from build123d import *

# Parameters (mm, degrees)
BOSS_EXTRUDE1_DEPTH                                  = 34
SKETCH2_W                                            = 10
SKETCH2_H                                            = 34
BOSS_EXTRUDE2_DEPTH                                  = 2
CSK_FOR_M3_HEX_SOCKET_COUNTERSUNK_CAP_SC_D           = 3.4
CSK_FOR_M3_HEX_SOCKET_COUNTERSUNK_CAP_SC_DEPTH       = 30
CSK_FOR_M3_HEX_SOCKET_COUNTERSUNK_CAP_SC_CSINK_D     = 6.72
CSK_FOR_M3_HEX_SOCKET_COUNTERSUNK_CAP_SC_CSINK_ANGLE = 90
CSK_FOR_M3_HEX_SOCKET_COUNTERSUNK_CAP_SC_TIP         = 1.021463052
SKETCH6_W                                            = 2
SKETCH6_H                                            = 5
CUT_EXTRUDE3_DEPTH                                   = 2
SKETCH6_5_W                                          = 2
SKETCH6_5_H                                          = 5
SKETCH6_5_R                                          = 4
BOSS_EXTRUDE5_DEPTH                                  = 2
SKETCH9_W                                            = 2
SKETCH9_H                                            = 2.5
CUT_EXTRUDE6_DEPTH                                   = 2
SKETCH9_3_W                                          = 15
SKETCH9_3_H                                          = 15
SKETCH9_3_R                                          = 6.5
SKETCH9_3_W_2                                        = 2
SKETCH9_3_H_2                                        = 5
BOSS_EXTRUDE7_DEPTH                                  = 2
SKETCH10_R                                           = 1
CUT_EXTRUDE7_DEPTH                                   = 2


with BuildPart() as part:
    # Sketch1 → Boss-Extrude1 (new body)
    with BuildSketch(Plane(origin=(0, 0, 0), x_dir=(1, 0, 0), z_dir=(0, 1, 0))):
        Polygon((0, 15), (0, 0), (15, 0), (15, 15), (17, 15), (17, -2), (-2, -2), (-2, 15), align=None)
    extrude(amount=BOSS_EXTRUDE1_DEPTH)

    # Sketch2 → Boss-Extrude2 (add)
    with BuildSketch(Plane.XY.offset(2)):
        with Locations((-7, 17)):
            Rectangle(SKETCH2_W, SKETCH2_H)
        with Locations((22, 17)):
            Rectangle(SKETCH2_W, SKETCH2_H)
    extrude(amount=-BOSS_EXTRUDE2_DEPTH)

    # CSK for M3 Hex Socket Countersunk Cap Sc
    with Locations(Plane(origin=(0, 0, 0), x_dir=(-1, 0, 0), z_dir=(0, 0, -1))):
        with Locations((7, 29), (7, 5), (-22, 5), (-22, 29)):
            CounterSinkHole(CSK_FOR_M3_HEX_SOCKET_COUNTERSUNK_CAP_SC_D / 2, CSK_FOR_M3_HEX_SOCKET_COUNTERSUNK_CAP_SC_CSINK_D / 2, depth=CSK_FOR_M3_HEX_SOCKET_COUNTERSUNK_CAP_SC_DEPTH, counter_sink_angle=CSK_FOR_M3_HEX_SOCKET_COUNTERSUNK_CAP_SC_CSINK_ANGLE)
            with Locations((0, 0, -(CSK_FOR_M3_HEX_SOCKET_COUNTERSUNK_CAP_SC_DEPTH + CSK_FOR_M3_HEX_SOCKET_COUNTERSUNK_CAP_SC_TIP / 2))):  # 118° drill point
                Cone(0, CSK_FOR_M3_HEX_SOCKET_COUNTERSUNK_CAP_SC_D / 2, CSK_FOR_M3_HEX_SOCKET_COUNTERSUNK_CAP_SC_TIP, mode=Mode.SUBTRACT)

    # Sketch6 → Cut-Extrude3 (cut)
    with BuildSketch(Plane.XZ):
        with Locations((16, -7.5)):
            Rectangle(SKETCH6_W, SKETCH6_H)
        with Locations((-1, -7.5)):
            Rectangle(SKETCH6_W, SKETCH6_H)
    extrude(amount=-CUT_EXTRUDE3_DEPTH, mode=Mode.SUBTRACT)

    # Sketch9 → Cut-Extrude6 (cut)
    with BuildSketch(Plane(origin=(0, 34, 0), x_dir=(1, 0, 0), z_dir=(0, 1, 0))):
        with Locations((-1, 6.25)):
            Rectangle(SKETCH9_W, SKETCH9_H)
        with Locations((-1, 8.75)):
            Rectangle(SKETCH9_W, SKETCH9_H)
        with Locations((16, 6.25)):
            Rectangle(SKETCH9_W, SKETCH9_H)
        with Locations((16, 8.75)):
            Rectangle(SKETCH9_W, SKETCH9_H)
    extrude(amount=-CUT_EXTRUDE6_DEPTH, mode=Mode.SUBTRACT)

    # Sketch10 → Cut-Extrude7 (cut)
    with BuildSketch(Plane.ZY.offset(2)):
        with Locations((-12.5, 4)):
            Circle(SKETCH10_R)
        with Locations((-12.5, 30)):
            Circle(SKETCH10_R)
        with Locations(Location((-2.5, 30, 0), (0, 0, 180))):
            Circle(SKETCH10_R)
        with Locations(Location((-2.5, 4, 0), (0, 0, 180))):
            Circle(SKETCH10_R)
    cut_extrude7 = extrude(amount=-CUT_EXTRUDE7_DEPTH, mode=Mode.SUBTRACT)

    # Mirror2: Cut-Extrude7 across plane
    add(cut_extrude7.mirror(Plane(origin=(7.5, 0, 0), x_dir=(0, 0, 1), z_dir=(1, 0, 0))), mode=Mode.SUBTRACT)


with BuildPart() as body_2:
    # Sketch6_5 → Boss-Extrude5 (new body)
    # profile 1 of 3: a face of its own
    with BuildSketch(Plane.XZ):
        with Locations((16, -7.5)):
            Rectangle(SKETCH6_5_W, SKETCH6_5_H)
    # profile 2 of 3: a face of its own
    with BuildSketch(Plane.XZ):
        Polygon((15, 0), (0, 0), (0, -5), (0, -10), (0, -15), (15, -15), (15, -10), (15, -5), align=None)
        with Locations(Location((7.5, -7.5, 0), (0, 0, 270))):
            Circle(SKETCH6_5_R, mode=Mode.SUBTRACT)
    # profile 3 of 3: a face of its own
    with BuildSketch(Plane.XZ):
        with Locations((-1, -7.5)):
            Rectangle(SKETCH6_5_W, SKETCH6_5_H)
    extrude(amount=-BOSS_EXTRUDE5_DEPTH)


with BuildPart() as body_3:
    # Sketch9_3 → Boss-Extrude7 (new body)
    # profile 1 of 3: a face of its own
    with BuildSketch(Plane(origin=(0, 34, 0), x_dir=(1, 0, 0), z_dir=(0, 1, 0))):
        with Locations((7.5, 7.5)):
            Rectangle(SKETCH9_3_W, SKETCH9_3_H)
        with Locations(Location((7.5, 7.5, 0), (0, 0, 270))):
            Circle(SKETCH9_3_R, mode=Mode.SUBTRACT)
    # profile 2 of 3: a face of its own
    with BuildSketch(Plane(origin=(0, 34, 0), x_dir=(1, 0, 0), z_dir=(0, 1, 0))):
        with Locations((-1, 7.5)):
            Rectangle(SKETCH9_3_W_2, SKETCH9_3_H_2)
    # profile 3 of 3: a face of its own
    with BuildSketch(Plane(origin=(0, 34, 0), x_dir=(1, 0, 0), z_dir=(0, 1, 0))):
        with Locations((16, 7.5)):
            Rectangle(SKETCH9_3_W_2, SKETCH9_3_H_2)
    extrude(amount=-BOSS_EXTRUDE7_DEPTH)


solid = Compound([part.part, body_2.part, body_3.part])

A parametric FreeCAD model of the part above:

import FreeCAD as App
import Part
import Sketcher

V = App.Vector
Q = App.Units.Quantity

doc = App.newDocument("Part")
body = doc.addObject("PartDesign::Body", "Body")

sketch1 = doc.addObject("Sketcher::SketchObject", "Sketch")
body.addObject(sketch1)
sketch1.AttachmentSupport = (doc.XZ_Plane, [""])
sketch1.MapMode = "FlatFace"
sketch1.addGeometry([
    Part.LineSegment(V(0, 0, 0), V(0, -15, 0)),
    Part.LineSegment(V(0, -15, 0), V(-2, -15, 0)),
    Part.LineSegment(V(-2, -15, 0), V(-2, 2, 0)),
    Part.LineSegment(V(-2, 2, 0), V(17, 2, 0)),
    Part.LineSegment(V(17, 2, 0), V(17, -15, 0)),
    Part.LineSegment(V(17, -15, 0), V(15, -15, 0)),
    Part.LineSegment(V(15, -15, 0), V(15, 0, 0)),
    Part.LineSegment(V(15, 0, 0), V(0, 0, 0)),
], False)
sketch1.addConstraint([
    Sketcher.Constraint("Coincident", 0, 2, 1, 1),
    Sketcher.Constraint("Coincident", 1, 2, 2, 1),
    Sketcher.Constraint("Coincident", 2, 2, 3, 1),
    Sketcher.Constraint("Coincident", 3, 2, 4, 1),
    Sketcher.Constraint("Coincident", 4, 2, 5, 1),
    Sketcher.Constraint("Coincident", 5, 2, 6, 1),
    Sketcher.Constraint("Coincident", 6, 2, 7, 1),
    Sketcher.Constraint("Coincident", 7, 2, 0, 1),
    Sketcher.Constraint("Vertical", 0),
    Sketcher.Constraint("Horizontal", 1),
    Sketcher.Constraint("Vertical", 2),
    Sketcher.Constraint("Horizontal", 3),
    Sketcher.Constraint("Vertical", 4),
    Sketcher.Constraint("Horizontal", 5),
    Sketcher.Constraint("Vertical", 6),
    Sketcher.Constraint("Horizontal", 7),
    Sketcher.Constraint("Coincident", 7, 2, -1, 1),
    Sketcher.Constraint("Horizontal", 1, 2, 4, 2),
    Sketcher.Constraint("Equal", 1, 5),
    Sketcher.Constraint("Equal", 7, 0),
    Sketcher.Constraint("DistanceX", 1, 2, 1, 1, Q("2 mm")),
    Sketcher.Constraint("DistanceX", 3, 1, 3, 2, Q("19 mm")),
    Sketcher.Constraint("DistanceY", 2, 1, 2, 2, Q("17 mm")),
])
pad1 = doc.addObject("PartDesign::Pad", "Pad")
body.addObject(pad1)
pad1.Profile = sketch1
pad1.Length = 34
pad1.Reversed = True

sketch2 = doc.addObject("Sketcher::SketchObject", "Sketch001")
body.addObject(sketch2)
sketch2.AttachmentSupport = (doc.XY_Plane, [""])
sketch2.MapMode = "FlatFace"
sketch2.AttachmentOffset = App.Placement(V(0, 0, 2), App.Rotation())
sketch2.addGeometry([
    Part.LineSegment(V(-12, 34, 0), V(-12, 0, 0)),
    Part.LineSegment(V(-12, 0, 0), V(-2, 0, 0)),
    Part.LineSegment(V(-2, 0, 0), V(-2, 34, 0)),
    Part.LineSegment(V(-2, 34, 0), V(-12, 34, 0)),
    Part.LineSegment(V(17, 34, 0), V(17, 0, 0)),
    Part.LineSegment(V(17, 0, 0), V(27, 0, 0)),
    Part.LineSegment(V(27, 0, 0), V(27, 34, 0)),
    Part.LineSegment(V(27, 34, 0), V(17, 34, 0)),
], False)
sketch2.addConstraint([
    Sketcher.Constraint("Coincident", 0, 2, 1, 1),
    Sketcher.Constraint("Coincident", 1, 2, 2, 1),
    Sketcher.Constraint("Coincident", 2, 2, 3, 1),
    Sketcher.Constraint("Coincident", 3, 2, 0, 1),
    Sketcher.Constraint("Coincident", 4, 2, 5, 1),
    Sketcher.Constraint("Coincident", 5, 2, 6, 1),
    Sketcher.Constraint("Coincident", 6, 2, 7, 1),
    Sketcher.Constraint("Coincident", 7, 2, 4, 1),
    Sketcher.Constraint("Vertical", 0),
    Sketcher.Constraint("Horizontal", 1),
    Sketcher.Constraint("Vertical", 2),
    Sketcher.Constraint("Horizontal", 3),
    Sketcher.Constraint("Vertical", 4),
    Sketcher.Constraint("Horizontal", 5),
    Sketcher.Constraint("Vertical", 6),
    Sketcher.Constraint("Horizontal", 7),
    Sketcher.Constraint("PointOnObject", 0, 2, -1),
    Sketcher.Constraint("PointOnObject", 4, 2, -1),
    Sketcher.Constraint("Horizontal", 3, 2, 6, 2),
    Sketcher.Constraint("Equal", 3, 5),
    Sketcher.Constraint("DistanceX", 1, 1, 1, 2, Q("10 mm")),
    Sketcher.Constraint("DistanceY", 0, 2, 0, 1, Q("34 mm")),
    Sketcher.Constraint("DistanceX", 0, 2, -1, 1, Q("12 mm")),
    Sketcher.Constraint("DistanceX", -1, 1, 4, 2, Q("17 mm")),
])
pad2 = doc.addObject("PartDesign::Pad", "Pad001")
body.addObject(pad2)
pad2.Profile = sketch2
pad2.Length = 2
pad2.Reversed = True

sketch3 = doc.addObject("Sketcher::SketchObject", "Sketch002")
body.addObject(sketch3)
sketch3.AttachmentSupport = (doc.XY_Plane, [""])
sketch3.MapMode = "FlatFace"
sketch3.addGeometry([
    Part.Circle(V(-7, 29, 0), V(0, 0, 1), 1.7),
    Part.Circle(V(-7, 5, 0), V(0, 0, 1), 1.7),
    Part.Circle(V(22, 5, 0), V(0, 0, 1), 1.7),
    Part.Circle(V(22, 29, 0), V(0, 0, 1), 1.7),
], False)
sketch3.addConstraint([
    Sketcher.Constraint("Equal", 0, 1),
    Sketcher.Constraint("Equal", 1, 2),
    Sketcher.Constraint("Equal", 2, 3),
    Sketcher.Constraint("Horizontal", 1, 3, 2, 3),
    Sketcher.Constraint("Horizontal", 0, 3, 3, 3),
    Sketcher.Constraint("Vertical", 0, 3, 1, 3),
    Sketcher.Constraint("Vertical", 2, 3, 3, 3),
    Sketcher.Constraint("Diameter", 0, Q("3.4 mm")),
    Sketcher.Constraint("DistanceX", 0, 3, -1, 1, Q("7 mm")),
    Sketcher.Constraint("DistanceY", -1, 1, 0, 3, Q("29 mm")),
    Sketcher.Constraint("DistanceY", -1, 1, 1, 3, Q("5 mm")),
    Sketcher.Constraint("DistanceX", -1, 1, 2, 3, Q("22 mm")),
])
doc.recompute()
hole = doc.addObject("PartDesign::Hole", "Hole")
body.addObject(hole)
hole.Profile = sketch3
hole.ThreadType = "None"
hole.Diameter = 3.4
hole.DepthType = "Dimension"
hole.Depth = 30
hole.DrillPoint = "Angled"
hole.DrillPointAngle = 118
hole.HoleCutType = "Countersink"
hole.HoleCutDiameter = 6.72
hole.HoleCutCountersinkAngle = 90
hole.Reversed = True

sketch4 = doc.addObject("Sketcher::SketchObject", "Sketch003")
body.addObject(sketch4)
sketch4.AttachmentSupport = (doc.XZ_Plane, [""])
sketch4.MapMode = "FlatFace"
sketch4.addGeometry([
    Part.LineSegment(V(15, -5, 0), V(15, -10, 0)),
    Part.LineSegment(V(15, -10, 0), V(17, -10, 0)),
    Part.LineSegment(V(17, -10, 0), V(17, -5, 0)),
    Part.LineSegment(V(17, -5, 0), V(15, -5, 0)),
    Part.LineSegment(V(-2, -5, 0), V(-2, -10, 0)),
    Part.LineSegment(V(-2, -10, 0), V(0, -10, 0)),
    Part.LineSegment(V(0, -10, 0), V(0, -5, 0)),
    Part.LineSegment(V(0, -5, 0), V(-2, -5, 0)),
], False)
sketch4.addConstraint([
    Sketcher.Constraint("Coincident", 0, 2, 1, 1),
    Sketcher.Constraint("Coincident", 1, 2, 2, 1),
    Sketcher.Constraint("Coincident", 2, 2, 3, 1),
    Sketcher.Constraint("Coincident", 3, 2, 0, 1),
    Sketcher.Constraint("Coincident", 4, 2, 5, 1),
    Sketcher.Constraint("Coincident", 5, 2, 6, 1),
    Sketcher.Constraint("Coincident", 6, 2, 7, 1),
    Sketcher.Constraint("Coincident", 7, 2, 4, 1),
    Sketcher.Constraint("Vertical", 0),
    Sketcher.Constraint("Horizontal", 1),
    Sketcher.Constraint("Vertical", 2),
    Sketcher.Constraint("Horizontal", 3),
    Sketcher.Constraint("Vertical", 4),
    Sketcher.Constraint("Horizontal", 5),
    Sketcher.Constraint("Vertical", 6),
    Sketcher.Constraint("Horizontal", 7),
    Sketcher.Constraint("PointOnObject", 5, 2, -2),
    Sketcher.Constraint("Horizontal", 1, 2, 4, 2),
    Sketcher.Constraint("Horizontal", 3, 2, 6, 2),
    Sketcher.Constraint("Equal", 3, 5),
    Sketcher.Constraint("DistanceX", 1, 1, 1, 2, Q("2 mm")),
    Sketcher.Constraint("DistanceY", 0, 2, 0, 1, Q("5 mm")),
    Sketcher.Constraint("DistanceX", -1, 1, 0, 2, Q("15 mm")),
    Sketcher.Constraint("DistanceY", 0, 2, -1, 1, Q("10 mm")),
])
pocket1 = doc.addObject("PartDesign::Pocket", "Pocket")
body.addObject(pocket1)
pocket1.Profile = sketch4
pocket1.Length = 2

sketch5 = doc.addObject("Sketcher::SketchObject", "Sketch004")
body.addObject(sketch5)
sketch5.AttachmentSupport = (doc.XZ_Plane, [""])
sketch5.MapMode = "FlatFace"
sketch5.AttachmentOffset = App.Placement(V(0, 0, -34), App.Rotation())
sketch5.addGeometry([
    Part.LineSegment(V(-2, -5, 0), V(0, -5, 0)),
    Part.LineSegment(V(0, -5, 0), V(0, -10, 0)),
    Part.LineSegment(V(0, -10, 0), V(-2, -10, 0)),
    Part.LineSegment(V(-2, -10, 0), V(-2, -5, 0)),
    Part.LineSegment(V(15, -5, 0), V(17, -5, 0)),
    Part.LineSegment(V(17, -5, 0), V(17, -10, 0)),
    Part.LineSegment(V(17, -10, 0), V(15, -10, 0)),
    Part.LineSegment(V(15, -10, 0), V(15, -5, 0)),
], False)
sketch5.addConstraint([
    Sketcher.Constraint("Coincident", 0, 2, 1, 1),
    Sketcher.Constraint("Coincident", 1, 2, 2, 1),
    Sketcher.Constraint("Coincident", 2, 2, 3, 1),
    Sketcher.Constraint("Coincident", 3, 2, 0, 1),
    Sketcher.Constraint("Coincident", 4, 2, 5, 1),
    Sketcher.Constraint("Coincident", 5, 2, 6, 1),
    Sketcher.Constraint("Coincident", 6, 2, 7, 1),
    Sketcher.Constraint("Coincident", 7, 2, 4, 1),
    Sketcher.Constraint("Horizontal", 0),
    Sketcher.Constraint("Vertical", 1),
    Sketcher.Constraint("Horizontal", 2),
    Sketcher.Constraint("Vertical", 3),
    Sketcher.Constraint("Horizontal", 4),
    Sketcher.Constraint("Vertical", 5),
    Sketcher.Constraint("Horizontal", 6),
    Sketcher.Constraint("Vertical", 7),
    Sketcher.Constraint("PointOnObject", 0, 2, -2),
    Sketcher.Constraint("Horizontal", 3, 2, 4, 2),
    Sketcher.Constraint("Horizontal", 2, 2, 5, 2),
    Sketcher.Constraint("Equal", 2, 4),
    Sketcher.Constraint("DistanceX", 0, 1, 0, 2, Q("2 mm")),
    Sketcher.Constraint("DistanceY", 1, 2, 1, 1, Q("5 mm")),
    Sketcher.Constraint("DistanceY", 0, 2, -1, 1, Q("5 mm")),
    Sketcher.Constraint("DistanceX", -1, 1, 4, 2, Q("17 mm")),
])
pocket2 = doc.addObject("PartDesign::Pocket", "Pocket001")
body.addObject(pocket2)
pocket2.Profile = sketch5
pocket2.Length = 2
pocket2.Reversed = True

sketch6 = doc.addObject("Sketcher::SketchObject", "Sketch005")
body.addObject(sketch6)
sketch6.AttachmentSupport = (doc.YZ_Plane, [""])
sketch6.MapMode = "FlatFace"
sketch6.AttachmentOffset = App.Placement(V(0, 0, -2), App.Rotation())
sketch6.addGeometry([
    Part.Circle(V(4, -12.5, 0), V(0, 0, 1), 1),
    Part.Circle(V(30, -12.5, 0), V(0, 0, 1), 1),
    Part.Circle(V(30, -2.5, 0), V(0, 0, 1), 1),
    Part.Circle(V(4, -2.5, 0), V(0, 0, 1), 1),
], False)
sketch6.addConstraint([
    Sketcher.Constraint("Equal", 0, 1),
    Sketcher.Constraint("Equal", 1, 2),
    Sketcher.Constraint("Equal", 2, 3),
    Sketcher.Constraint("Horizontal", 0, 3, 1, 3),
    Sketcher.Constraint("Horizontal", 2, 3, 3, 3),
    Sketcher.Constraint("Vertical", 1, 3, 2, 3),
    Sketcher.Constraint("Vertical", 0, 3, 3, 3),
    Sketcher.Constraint("Diameter", 0, Q("2 mm")),
    Sketcher.Constraint("DistanceX", -1, 1, 0, 3, Q("4 mm")),
    Sketcher.Constraint("DistanceX", -1, 1, 1, 3, Q("30 mm")),
    Sketcher.Constraint("DistanceY", 1, 3, 2, 3, Q("10 mm")),
    Sketcher.Constraint("DistanceY", 0, 3, -1, 1, Q("12.5 mm")),
])
pocket3 = doc.addObject("PartDesign::Pocket", "Pocket002")
body.addObject(pocket3)
pocket3.Profile = sketch6
pocket3.Length = 2
pocket3.Reversed = True
doc.recompute()

datumplane = doc.addObject("PartDesign::Plane", "DatumPlane")
body.addObject(datumplane)
datumplane.AttachmentSupport = (doc.YZ_Plane, [""])
datumplane.MapMode = "FlatFace"
datumplane.AttachmentOffset = App.Placement(V(0, 0, 7.5), App.Rotation())
mirrored = doc.addObject("PartDesign::Mirrored", "Mirrored")
body.addObject(mirrored)
mirrored.Originals = [pocket3]
mirrored.MirrorPlane = (datumplane, [""])
body.Tip = mirrored
body2 = doc.addObject("PartDesign::Body", "Body001")

sketch7 = doc.addObject("Sketcher::SketchObject", "Sketch006")
body2.addObject(sketch7)
sketch7.AttachmentSupport = (doc.getObject("XZ_Plane001"), [""])
sketch7.MapMode = "FlatFace"
sketch7.addGeometry([
    Part.LineSegment(V(15, -10, 0), V(17, -10, 0)),
    Part.LineSegment(V(17, -10, 0), V(17, -5, 0)),
    Part.LineSegment(V(17, -5, 0), V(15, -5, 0)),
    Part.LineSegment(V(15, -5, 0), V(15, 0, 0)),
    Part.LineSegment(V(15, 0, 0), V(0, 0, 0)),
    Part.LineSegment(V(0, 0, 0), V(0, -5, 0)),
    Part.LineSegment(V(0, -5, 0), V(-2, -5, 0)),
    Part.LineSegment(V(-2, -5, 0), V(-2, -10, 0)),
    Part.LineSegment(V(-2, -10, 0), V(0, -10, 0)),
    Part.LineSegment(V(0, -10, 0), V(0, -15, 0)),
    Part.LineSegment(V(0, -15, 0), V(15, -15, 0)),
    Part.LineSegment(V(15, -15, 0), V(15, -10, 0)),
    Part.Circle(V(7.5, -7.5, 0), V(0, 0, 1), 4),
], False)
sketch7.addConstraint([
    Sketcher.Constraint("Coincident", 0, 2, 1, 1),
    Sketcher.Constraint("Coincident", 1, 2, 2, 1),
    Sketcher.Constraint("Coincident", 2, 2, 3, 1),
    Sketcher.Constraint("Coincident", 3, 2, 4, 1),
    Sketcher.Constraint("Coincident", 4, 2, 5, 1),
    Sketcher.Constraint("Coincident", 5, 2, 6, 1),
    Sketcher.Constraint("Coincident", 6, 2, 7, 1),
    Sketcher.Constraint("Coincident", 7, 2, 8, 1),
    Sketcher.Constraint("Coincident", 8, 2, 9, 1),
    Sketcher.Constraint("Coincident", 9, 2, 10, 1),
    Sketcher.Constraint("Coincident", 10, 2, 11, 1),
    Sketcher.Constraint("Coincident", 11, 2, 0, 1),
    Sketcher.Constraint("Horizontal", 0),
    Sketcher.Constraint("Vertical", 1),
    Sketcher.Constraint("Horizontal", 2),
    Sketcher.Constraint("Vertical", 3),
    Sketcher.Constraint("Horizontal", 4),
    Sketcher.Constraint("Vertical", 5),
    Sketcher.Constraint("Horizontal", 6),
    Sketcher.Constraint("Vertical", 7),
    Sketcher.Constraint("Horizontal", 8),
    Sketcher.Constraint("Vertical", 9),
    Sketcher.Constraint("Horizontal", 10),
    Sketcher.Constraint("Vertical", 11),
    Sketcher.Constraint("Coincident", 4, 2, -1, 1),
    Sketcher.Constraint("PointOnObject", 8, 2, -2),
    Sketcher.Constraint("Horizontal", 2, 2, 5, 2),
    Sketcher.Constraint("Horizontal", 0, 2, 7, 2),
    Sketcher.Constraint("Vertical", 3, 2, 10, 2),
    Sketcher.Constraint("Equal", 2, 6),
    Sketcher.Constraint("Equal", 1, 3),
    Sketcher.Constraint("Equal", 7, 9),
    Sketcher.Constraint("Diameter", 12, Q("8 mm")),
    Sketcher.Constraint("DistanceX", 0, 1, 0, 2, Q("2 mm")),
    Sketcher.Constraint("DistanceX", 4, 2, 4, 1, Q("15 mm")),
    Sketcher.Constraint("DistanceY", 1, 1, 1, 2, Q("5 mm")),
    Sketcher.Constraint("DistanceX", -1, 1, 12, 3, Q("7.5 mm")),
    Sketcher.Constraint("DistanceY", 12, 3, -1, 1, Q("7.5 mm")),
])
pad3 = doc.addObject("PartDesign::Pad", "Pad002")
body2.addObject(pad3)
pad3.Profile = sketch7
pad3.Length = 2
pad3.Reversed = True
body3 = doc.addObject("PartDesign::Body", "Body002")

sketch8 = doc.addObject("Sketcher::SketchObject", "Sketch007")
body3.addObject(sketch8)
sketch8.AttachmentSupport = (doc.getObject("XZ_Plane002"), [""])
sketch8.MapMode = "FlatFace"
sketch8.AttachmentOffset = App.Placement(V(0, 0, -34), App.Rotation())
sketch8.addGeometry([
    Part.LineSegment(V(0, -5, 0), V(0, 0, 0)),
    Part.LineSegment(V(0, 0, 0), V(15, 0, 0)),
    Part.LineSegment(V(15, 0, 0), V(15, -5, 0)),
    Part.LineSegment(V(15, -5, 0), V(17, -5, 0)),
    Part.LineSegment(V(17, -5, 0), V(17, -10, 0)),
    Part.LineSegment(V(17, -10, 0), V(15, -10, 0)),
    Part.LineSegment(V(15, -10, 0), V(15, -15, 0)),
    Part.LineSegment(V(15, -15, 0), V(0, -15, 0)),
    Part.LineSegment(V(0, -15, 0), V(0, -10, 0)),
    Part.LineSegment(V(0, -10, 0), V(-2, -10, 0)),
    Part.LineSegment(V(-2, -10, 0), V(-2, -5, 0)),
    Part.LineSegment(V(-2, -5, 0), V(0, -5, 0)),
    Part.Circle(V(7.5, -7.5, 0), V(0, 0, 1), 6.5),
], False)
sketch8.addConstraint([
    Sketcher.Constraint("Coincident", 0, 2, 1, 1),
    Sketcher.Constraint("Coincident", 1, 2, 2, 1),
    Sketcher.Constraint("Coincident", 2, 2, 3, 1),
    Sketcher.Constraint("Coincident", 3, 2, 4, 1),
    Sketcher.Constraint("Coincident", 4, 2, 5, 1),
    Sketcher.Constraint("Coincident", 5, 2, 6, 1),
    Sketcher.Constraint("Coincident", 6, 2, 7, 1),
    Sketcher.Constraint("Coincident", 7, 2, 8, 1),
    Sketcher.Constraint("Coincident", 8, 2, 9, 1),
    Sketcher.Constraint("Coincident", 9, 2, 10, 1),
    Sketcher.Constraint("Coincident", 10, 2, 11, 1),
    Sketcher.Constraint("Coincident", 11, 2, 0, 1),
    Sketcher.Constraint("Vertical", 0),
    Sketcher.Constraint("Horizontal", 1),
    Sketcher.Constraint("Vertical", 2),
    Sketcher.Constraint("Horizontal", 3),
    Sketcher.Constraint("Vertical", 4),
    Sketcher.Constraint("Horizontal", 5),
    Sketcher.Constraint("Vertical", 6),
    Sketcher.Constraint("Horizontal", 7),
    Sketcher.Constraint("Vertical", 8),
    Sketcher.Constraint("Horizontal", 9),
    Sketcher.Constraint("Vertical", 10),
    Sketcher.Constraint("Horizontal", 11),
    Sketcher.Constraint("Coincident", 0, 2, -1, 1),
    Sketcher.Constraint("PointOnObject", 7, 2, -2),
    Sketcher.Constraint("Horizontal", 5, 2, 8, 2),
    Sketcher.Constraint("Horizontal", 3, 2, 10, 2),
    Sketcher.Constraint("Vertical", 2, 2, 5, 2),
    Sketcher.Constraint("Equal", 5, 9),
    Sketcher.Constraint("Equal", 2, 4),
    Sketcher.Constraint("Equal", 4, 6),
    Sketcher.Constraint("Diameter", 12, Q("13 mm")),
    Sketcher.Constraint("DistanceX", 1, 1, 1, 2, Q("15 mm")),
    Sketcher.Constraint("DistanceX", 3, 1, 3, 2, Q("2 mm")),
    Sketcher.Constraint("DistanceY", 0, 1, 0, 2, Q("5 mm")),
    Sketcher.Constraint("DistanceX", -1, 1, 12, 3, Q("7.5 mm")),
    Sketcher.Constraint("DistanceY", 12, 3, -1, 1, Q("7.5 mm")),
])
pad4 = doc.addObject("PartDesign::Pad", "Pad003")
body3.addObject(pad4)
pad4.Profile = sketch8
pad4.Length = 2

doc.recompute()
